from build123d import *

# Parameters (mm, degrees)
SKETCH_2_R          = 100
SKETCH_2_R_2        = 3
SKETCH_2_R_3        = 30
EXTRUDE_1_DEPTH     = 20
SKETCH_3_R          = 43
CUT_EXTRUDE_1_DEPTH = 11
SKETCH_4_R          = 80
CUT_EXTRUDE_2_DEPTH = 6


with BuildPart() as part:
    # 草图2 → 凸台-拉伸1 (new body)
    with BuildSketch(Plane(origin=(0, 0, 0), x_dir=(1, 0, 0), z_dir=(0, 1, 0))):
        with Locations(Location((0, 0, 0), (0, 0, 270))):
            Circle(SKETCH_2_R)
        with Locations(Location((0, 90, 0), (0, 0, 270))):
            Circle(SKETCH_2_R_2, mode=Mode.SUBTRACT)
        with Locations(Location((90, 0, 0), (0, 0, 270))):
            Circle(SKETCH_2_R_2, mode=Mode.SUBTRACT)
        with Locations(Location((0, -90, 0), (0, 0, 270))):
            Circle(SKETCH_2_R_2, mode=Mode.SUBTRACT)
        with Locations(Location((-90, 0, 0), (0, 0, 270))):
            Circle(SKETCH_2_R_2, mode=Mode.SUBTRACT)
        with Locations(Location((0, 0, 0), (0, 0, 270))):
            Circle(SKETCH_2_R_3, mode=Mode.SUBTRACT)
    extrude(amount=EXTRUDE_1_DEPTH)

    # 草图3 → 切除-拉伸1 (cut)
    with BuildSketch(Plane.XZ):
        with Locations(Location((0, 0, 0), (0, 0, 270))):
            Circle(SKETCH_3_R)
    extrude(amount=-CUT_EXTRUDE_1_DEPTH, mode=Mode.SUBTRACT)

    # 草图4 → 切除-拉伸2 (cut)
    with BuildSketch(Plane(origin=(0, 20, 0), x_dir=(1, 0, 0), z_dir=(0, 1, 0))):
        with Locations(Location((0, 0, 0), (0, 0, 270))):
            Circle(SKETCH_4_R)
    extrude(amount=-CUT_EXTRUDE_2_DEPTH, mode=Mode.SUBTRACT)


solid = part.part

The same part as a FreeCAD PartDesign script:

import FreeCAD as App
import Part
import Sketcher
from FreeCAD import Vector
Q = App.Units.Quantity

doc = App.newDocument("Part")
body = doc.addObject("PartDesign::Body", "Body")

# Sketch on XZ plane
sketch1 = body.newObject("Sketcher::SketchObject", "Sketch")
sketch1.AttachmentSupport = (doc.getObject("XZ_Plane"), [""])
sketch1.MapMode = "FlatFace"
sketch1.addGeometry(Part.Circle(Vector(0, 0, 0), Vector(0, 0, 1), 100), False)
sketch1.addGeometry(Part.Circle(Vector(0, -90, 0), Vector(0, 0, 1), 3), False)
sketch1.addGeometry(Part.Circle(Vector(-90, 0, 0), Vector(0, 0, 1), 3), False)
sketch1.addGeometry(Part.Circle(Vector(90, 0, 0), Vector(0, 0, 1), 3), False)
sketch1.addGeometry(Part.Circle(Vector(0, 0, 0), Vector(0, 0, 1), 30), False)
sketch1.addGeometry(Part.Circle(Vector(0, 90, 0), Vector(0, 0, 1), 3), False)
sketch1.addConstraint(Sketcher.Constraint("Coincident", 0, 3, -1, 1))
sketch1.addConstraint(Sketcher.Constraint("Coincident", 4, 3, -1, 1))
sketch1.addConstraint(Sketcher.Constraint("Equal", 1, 2))
sketch1.addConstraint(Sketcher.Constraint("Equal", 2, 3))
sketch1.addConstraint(Sketcher.Constraint("Equal", 3, 5))
sketch1.addConstraint(Sketcher.Constraint("Symmetric", 2, 3, 3, 3, -1, 1))
sketch1.addConstraint(Sketcher.Constraint("Symmetric", 1, 3, 5, 3, -1, 1))
sketch1.addConstraint(Sketcher.Constraint("PointOnObject", 1, 3, -2))
sketch1.addConstraint(Sketcher.Constraint("PointOnObject", 2, 3, -1))
sketch1.addConstraint(Sketcher.Constraint("Diameter", 0, Q("200 mm")))
sketch1.addConstraint(Sketcher.Constraint("Diameter", 1, Q("6 mm")))
sketch1.addConstraint(Sketcher.Constraint("Diameter", 4, Q("60 mm")))
sketch1.addConstraint(Sketcher.Constraint("DistanceY", 1, 3, -1, 1, Q("90 mm")))
sketch1.addConstraint(Sketcher.Constraint("DistanceX", 2, 3, -1, 1, Q("90 mm")))
pad1 = body.newObject("PartDesign::Pad", "Pad")
pad1.Profile = sketch1
pad1.Length = 20
pad1.Reversed = True

# Sketch on XZ plane
sketch2 = body.newObject("Sketcher::SketchObject", "Sketch001")
sketch2.AttachmentSupport = (doc.getObject("XZ_Plane"), [""])
sketch2.MapMode = "FlatFace"
sketch2.addGeometry(Part.Circle(Vector(0, 0, 0), Vector(0, 0, 1), 43), False)
sketch2.addConstraint(Sketcher.Constraint("Coincident", 0, 3, -1, 1))
sketch2.addConstraint(Sketcher.Constraint("Diameter", 0, Q("86 mm")))
pocket1 = body.newObject("PartDesign::Pocket", "Pocket")
pocket1.Profile = sketch2
pocket1.Length = 11

# Sketch on XZ plane
sketch3 = body.newObject("Sketcher::SketchObject", "Sketch002")
sketch3.AttachmentSupport = (doc.getObject("XZ_Plane"), [""])
sketch3.MapMode = "FlatFace"
sketch3.AttachmentOffset = App.Placement(Vector(0, 0, -20), App.Rotation())
sketch3.addGeometry(Part.Circle(Vector(0, 0, 0), Vector(0, 0, 1), 80), False)
sketch3.addConstraint(Sketcher.Constraint("Coincident", 0, 3, -1, 1))
sketch3.addConstraint(Sketcher.Constraint("Diameter", 0, Q("160 mm")))
pocket2 = body.newObject("PartDesign::Pocket", "Pocket001")
pocket2.Profile = sketch3
pocket2.Length = 6
pocket2.Reversed = True

doc.recompute()
